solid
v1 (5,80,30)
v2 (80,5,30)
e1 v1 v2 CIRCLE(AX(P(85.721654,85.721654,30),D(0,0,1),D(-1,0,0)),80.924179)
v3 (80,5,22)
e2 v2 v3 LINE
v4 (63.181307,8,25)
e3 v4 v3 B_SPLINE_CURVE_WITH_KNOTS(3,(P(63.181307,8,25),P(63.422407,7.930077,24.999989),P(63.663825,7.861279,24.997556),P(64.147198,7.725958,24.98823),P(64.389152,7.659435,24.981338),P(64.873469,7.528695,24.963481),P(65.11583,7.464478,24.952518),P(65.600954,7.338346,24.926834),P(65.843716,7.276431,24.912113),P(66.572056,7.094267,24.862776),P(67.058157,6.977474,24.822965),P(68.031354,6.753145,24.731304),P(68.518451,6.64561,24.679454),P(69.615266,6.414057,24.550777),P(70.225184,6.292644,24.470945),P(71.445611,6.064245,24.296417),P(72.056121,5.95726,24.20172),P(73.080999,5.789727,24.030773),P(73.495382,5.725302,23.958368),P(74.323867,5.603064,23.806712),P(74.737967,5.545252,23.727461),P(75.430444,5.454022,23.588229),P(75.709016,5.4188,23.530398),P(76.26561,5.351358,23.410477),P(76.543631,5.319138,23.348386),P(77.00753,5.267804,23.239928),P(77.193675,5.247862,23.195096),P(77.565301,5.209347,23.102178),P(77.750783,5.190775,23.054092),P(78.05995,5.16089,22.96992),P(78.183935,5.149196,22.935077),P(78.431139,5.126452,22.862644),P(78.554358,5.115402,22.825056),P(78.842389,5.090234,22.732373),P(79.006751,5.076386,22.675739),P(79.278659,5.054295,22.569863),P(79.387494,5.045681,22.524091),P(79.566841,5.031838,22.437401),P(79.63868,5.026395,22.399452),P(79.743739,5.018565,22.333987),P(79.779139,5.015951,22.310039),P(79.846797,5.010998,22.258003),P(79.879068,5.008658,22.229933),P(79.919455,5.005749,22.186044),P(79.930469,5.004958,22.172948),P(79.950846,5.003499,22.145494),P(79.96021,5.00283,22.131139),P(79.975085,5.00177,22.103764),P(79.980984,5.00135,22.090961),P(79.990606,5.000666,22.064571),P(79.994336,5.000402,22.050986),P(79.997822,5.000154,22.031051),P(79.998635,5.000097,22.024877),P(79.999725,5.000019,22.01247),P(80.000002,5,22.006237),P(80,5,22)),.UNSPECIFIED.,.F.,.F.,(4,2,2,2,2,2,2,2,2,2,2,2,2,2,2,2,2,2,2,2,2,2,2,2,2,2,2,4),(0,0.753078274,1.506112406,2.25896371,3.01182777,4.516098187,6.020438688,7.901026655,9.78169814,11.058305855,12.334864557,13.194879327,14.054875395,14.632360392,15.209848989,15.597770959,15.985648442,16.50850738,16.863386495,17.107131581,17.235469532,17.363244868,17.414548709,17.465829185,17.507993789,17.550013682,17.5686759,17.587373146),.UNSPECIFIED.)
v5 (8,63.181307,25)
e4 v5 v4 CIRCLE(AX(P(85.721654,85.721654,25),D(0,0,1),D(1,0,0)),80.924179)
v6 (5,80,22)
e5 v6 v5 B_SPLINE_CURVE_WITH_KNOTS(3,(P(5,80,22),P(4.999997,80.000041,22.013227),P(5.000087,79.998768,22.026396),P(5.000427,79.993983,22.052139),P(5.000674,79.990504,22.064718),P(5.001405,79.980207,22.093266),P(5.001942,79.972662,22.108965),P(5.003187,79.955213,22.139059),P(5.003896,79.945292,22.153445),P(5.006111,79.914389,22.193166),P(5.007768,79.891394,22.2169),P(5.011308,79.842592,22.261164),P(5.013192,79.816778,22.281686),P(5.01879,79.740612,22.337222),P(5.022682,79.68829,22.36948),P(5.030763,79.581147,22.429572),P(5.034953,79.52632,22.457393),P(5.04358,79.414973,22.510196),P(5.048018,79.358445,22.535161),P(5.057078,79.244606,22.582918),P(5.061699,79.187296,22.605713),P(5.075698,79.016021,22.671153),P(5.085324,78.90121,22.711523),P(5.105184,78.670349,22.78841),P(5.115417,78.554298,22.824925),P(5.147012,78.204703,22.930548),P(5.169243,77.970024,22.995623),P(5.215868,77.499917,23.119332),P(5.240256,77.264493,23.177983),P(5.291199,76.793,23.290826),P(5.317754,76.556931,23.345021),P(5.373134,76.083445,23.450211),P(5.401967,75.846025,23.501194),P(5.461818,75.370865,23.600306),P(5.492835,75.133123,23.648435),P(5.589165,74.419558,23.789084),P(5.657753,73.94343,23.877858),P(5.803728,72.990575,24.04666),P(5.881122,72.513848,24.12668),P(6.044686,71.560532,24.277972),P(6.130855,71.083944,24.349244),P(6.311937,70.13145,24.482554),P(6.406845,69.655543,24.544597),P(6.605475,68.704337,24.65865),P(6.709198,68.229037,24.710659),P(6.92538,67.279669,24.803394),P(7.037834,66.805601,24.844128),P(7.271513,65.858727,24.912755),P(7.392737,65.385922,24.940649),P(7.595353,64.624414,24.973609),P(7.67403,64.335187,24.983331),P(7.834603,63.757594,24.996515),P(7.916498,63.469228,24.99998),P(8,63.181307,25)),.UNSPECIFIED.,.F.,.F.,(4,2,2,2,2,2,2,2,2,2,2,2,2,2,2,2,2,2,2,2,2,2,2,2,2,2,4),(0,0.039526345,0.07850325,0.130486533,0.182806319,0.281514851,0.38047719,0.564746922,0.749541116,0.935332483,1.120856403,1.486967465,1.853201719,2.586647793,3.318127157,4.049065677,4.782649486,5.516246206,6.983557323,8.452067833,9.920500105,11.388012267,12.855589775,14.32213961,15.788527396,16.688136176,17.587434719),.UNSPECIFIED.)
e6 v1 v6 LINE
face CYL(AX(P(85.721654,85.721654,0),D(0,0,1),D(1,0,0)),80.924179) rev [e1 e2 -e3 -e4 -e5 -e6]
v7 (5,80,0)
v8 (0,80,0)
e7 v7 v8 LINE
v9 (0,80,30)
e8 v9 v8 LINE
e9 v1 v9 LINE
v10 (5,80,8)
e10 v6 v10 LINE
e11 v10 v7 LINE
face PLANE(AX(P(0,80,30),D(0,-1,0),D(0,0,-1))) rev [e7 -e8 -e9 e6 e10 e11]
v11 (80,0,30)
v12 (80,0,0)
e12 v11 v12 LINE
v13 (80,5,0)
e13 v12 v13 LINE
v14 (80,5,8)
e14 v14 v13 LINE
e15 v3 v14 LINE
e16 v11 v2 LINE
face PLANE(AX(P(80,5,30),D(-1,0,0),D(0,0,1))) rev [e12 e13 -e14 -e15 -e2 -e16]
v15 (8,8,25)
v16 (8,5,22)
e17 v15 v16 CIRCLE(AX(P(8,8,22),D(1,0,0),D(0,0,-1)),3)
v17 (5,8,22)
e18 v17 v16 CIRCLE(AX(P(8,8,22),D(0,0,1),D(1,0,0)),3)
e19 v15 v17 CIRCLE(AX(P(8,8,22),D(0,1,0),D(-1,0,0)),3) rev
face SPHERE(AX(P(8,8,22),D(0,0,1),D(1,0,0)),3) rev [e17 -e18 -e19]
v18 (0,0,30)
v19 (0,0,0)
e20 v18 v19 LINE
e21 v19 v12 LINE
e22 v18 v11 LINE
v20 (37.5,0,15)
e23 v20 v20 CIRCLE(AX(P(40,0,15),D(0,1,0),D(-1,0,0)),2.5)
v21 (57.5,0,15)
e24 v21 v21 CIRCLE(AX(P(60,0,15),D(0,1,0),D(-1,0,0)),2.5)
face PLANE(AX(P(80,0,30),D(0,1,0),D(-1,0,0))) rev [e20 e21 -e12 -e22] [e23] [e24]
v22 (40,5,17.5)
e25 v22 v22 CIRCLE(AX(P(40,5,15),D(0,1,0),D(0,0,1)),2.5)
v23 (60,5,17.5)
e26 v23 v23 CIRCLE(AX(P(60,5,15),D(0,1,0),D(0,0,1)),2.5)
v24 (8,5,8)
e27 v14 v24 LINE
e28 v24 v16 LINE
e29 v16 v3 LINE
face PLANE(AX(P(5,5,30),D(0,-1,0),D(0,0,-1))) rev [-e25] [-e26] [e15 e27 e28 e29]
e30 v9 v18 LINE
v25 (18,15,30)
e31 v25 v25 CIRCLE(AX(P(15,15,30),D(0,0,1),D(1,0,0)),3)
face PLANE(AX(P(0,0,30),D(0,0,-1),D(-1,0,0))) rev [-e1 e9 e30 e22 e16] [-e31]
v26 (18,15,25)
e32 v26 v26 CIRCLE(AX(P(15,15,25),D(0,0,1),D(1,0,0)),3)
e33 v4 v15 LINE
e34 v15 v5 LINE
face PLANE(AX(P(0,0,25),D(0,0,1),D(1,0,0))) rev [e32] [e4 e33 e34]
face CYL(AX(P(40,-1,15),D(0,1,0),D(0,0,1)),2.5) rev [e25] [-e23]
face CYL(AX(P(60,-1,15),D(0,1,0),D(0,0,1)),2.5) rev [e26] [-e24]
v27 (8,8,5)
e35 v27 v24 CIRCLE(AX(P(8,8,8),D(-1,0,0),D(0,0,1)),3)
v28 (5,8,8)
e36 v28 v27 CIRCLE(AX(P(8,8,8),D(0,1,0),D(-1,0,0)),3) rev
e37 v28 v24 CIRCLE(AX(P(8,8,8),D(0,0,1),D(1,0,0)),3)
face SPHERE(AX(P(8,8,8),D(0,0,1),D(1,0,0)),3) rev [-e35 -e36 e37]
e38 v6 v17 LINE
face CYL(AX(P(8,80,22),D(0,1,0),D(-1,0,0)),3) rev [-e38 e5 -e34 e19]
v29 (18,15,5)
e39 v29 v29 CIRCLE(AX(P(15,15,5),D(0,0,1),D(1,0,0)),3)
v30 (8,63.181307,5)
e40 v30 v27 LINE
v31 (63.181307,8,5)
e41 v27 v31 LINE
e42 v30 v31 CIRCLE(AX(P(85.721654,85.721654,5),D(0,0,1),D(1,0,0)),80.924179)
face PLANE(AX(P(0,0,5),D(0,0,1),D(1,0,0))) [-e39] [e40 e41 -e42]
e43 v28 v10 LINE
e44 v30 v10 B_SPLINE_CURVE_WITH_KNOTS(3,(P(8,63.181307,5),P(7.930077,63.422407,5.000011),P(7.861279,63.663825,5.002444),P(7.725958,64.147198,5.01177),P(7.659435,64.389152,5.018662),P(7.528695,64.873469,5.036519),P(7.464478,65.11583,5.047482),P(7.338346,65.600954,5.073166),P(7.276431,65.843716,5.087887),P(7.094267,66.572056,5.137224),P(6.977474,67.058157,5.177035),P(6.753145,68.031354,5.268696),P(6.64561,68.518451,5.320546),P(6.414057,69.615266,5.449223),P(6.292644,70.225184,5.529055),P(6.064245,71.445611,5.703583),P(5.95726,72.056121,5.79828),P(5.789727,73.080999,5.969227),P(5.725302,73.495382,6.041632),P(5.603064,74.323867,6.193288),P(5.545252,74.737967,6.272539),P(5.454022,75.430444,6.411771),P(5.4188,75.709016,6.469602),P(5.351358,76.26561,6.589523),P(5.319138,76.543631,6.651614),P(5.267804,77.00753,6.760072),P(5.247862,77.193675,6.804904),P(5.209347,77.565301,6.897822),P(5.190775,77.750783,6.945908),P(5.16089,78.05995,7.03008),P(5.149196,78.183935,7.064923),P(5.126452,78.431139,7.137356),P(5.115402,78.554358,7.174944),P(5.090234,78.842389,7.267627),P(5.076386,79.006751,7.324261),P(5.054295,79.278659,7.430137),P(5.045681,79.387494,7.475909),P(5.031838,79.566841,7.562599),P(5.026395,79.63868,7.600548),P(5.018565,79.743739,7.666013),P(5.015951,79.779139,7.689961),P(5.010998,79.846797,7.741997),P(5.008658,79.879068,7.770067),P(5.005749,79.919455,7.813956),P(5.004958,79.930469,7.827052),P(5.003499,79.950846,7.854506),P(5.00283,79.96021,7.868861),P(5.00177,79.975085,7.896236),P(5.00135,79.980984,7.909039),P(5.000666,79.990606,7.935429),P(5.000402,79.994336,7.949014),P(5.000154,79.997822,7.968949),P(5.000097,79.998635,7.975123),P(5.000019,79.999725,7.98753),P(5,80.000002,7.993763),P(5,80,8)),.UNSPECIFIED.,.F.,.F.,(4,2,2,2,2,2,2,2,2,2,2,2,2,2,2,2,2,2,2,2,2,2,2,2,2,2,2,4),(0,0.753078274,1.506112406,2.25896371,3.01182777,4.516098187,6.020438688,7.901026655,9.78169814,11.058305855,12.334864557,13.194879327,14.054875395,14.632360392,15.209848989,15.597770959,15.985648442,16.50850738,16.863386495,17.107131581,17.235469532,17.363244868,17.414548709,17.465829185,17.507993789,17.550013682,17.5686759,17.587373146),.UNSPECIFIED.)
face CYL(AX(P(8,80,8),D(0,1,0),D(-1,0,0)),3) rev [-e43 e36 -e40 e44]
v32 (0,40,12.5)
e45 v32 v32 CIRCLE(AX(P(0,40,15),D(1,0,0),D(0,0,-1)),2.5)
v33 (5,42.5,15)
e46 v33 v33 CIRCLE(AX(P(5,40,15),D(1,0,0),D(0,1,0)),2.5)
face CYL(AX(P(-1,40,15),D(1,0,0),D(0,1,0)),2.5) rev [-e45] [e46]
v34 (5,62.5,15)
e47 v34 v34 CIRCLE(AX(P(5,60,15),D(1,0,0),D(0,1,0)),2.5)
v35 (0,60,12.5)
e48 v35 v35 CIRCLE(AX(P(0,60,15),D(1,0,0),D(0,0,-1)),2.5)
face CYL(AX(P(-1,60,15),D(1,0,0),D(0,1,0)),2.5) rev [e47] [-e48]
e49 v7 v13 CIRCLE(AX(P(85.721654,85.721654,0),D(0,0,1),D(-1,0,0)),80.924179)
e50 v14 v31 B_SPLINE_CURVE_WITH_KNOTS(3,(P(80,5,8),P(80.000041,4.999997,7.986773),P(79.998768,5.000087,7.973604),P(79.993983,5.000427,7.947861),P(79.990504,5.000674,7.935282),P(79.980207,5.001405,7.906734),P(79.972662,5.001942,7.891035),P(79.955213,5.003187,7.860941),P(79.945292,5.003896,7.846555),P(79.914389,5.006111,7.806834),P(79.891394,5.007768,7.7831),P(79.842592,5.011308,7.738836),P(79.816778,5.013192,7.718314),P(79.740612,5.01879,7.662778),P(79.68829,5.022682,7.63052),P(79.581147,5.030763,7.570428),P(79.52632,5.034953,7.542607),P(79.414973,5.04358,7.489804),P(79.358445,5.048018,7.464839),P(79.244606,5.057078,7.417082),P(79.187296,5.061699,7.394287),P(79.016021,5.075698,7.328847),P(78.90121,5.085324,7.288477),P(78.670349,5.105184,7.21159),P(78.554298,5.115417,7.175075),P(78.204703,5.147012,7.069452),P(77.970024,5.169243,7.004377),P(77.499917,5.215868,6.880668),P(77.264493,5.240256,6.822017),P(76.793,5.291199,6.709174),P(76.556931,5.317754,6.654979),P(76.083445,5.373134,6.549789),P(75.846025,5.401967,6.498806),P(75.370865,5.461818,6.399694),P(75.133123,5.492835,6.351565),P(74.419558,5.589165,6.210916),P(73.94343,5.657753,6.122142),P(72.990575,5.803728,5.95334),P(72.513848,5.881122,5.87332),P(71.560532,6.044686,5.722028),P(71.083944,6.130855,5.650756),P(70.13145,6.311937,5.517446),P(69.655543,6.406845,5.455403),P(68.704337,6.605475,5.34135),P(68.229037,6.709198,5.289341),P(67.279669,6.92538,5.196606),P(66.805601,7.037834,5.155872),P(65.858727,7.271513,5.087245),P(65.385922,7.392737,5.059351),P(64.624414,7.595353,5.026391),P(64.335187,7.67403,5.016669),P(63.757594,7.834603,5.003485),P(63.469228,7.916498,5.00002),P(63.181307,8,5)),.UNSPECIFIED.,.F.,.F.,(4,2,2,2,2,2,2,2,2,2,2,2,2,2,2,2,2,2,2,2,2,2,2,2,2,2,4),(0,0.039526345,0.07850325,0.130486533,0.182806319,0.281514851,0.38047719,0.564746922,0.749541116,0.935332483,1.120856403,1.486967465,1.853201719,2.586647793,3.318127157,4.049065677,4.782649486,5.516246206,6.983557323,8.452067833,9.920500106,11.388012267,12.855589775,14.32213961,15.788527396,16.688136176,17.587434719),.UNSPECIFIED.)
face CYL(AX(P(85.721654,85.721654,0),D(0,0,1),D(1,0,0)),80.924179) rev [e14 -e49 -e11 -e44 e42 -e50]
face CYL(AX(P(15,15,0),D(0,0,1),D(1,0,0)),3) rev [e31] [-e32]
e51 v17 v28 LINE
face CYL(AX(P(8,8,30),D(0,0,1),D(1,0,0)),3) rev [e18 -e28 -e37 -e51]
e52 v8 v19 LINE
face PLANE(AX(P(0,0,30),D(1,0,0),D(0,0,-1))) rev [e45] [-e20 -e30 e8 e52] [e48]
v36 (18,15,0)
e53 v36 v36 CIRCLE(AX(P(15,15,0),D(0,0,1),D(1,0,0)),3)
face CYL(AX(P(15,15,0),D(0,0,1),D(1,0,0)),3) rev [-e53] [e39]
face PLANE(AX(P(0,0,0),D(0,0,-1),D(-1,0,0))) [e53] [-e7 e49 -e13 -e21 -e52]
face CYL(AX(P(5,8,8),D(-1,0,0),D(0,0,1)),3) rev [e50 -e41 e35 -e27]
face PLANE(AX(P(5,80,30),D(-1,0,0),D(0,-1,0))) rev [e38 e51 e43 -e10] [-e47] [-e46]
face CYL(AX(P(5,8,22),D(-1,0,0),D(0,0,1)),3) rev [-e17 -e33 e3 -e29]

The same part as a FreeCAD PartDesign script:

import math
import FreeCAD as App
import Part
import Sketcher
Q = App.Units.Quantity


def edges_at(feature, points):
    """Names of the edges that pass closest to the given points."""
    edges = feature.Shape.Edges
    near = lambda p: min(range(len(edges)), key=lambda i: edges[i].distToShape(Part.Vertex(*p))[0])
    return sorted({f"Edge{near(p) + 1}" for p in points})

doc = App.newDocument("Part")
body = doc.addObject("PartDesign::Body", "Body")

# Sketch on XY plane
sketch1 = doc.addObject("Sketcher::SketchObject", "Sketch")
body.addObject(sketch1)
sketch1.AttachmentSupport = (doc.XY_Plane, [""])
sketch1.MapMode = "FlatFace"
sketch1.addGeometry([
    Part.LineSegment(App.Vector(0, 80, 0), App.Vector(0, 0, 0)),  # 0
    Part.LineSegment(App.Vector(0, 0, 0), App.Vector(80, 0, 0)),  # 1
    Part.LineSegment(App.Vector(80, 0, 0), App.Vector(80, 5, 0)),  # 2
    Part.LineSegment(App.Vector(80, 5, 0), App.Vector(5, 5, 0)),  # 3
    Part.LineSegment(App.Vector(5, 5, 0), App.Vector(5, 80, 0)),  # 4
    Part.LineSegment(App.Vector(5, 80, 0), App.Vector(0, 80, 0)),  # 5
], False)
sketch1.addConstraint([
    Sketcher.Constraint("Coincident", 0, 2, 1, 1),
    Sketcher.Constraint("Coincident", 1, 2, 2, 1),
    Sketcher.Constraint("Coincident", 2, 2, 3, 1),
    Sketcher.Constraint("Coincident", 3, 2, 4, 1),
    Sketcher.Constraint("Coincident", 4, 2, 5, 1),
    Sketcher.Constraint("Coincident", 5, 2, 0, 1),
    Sketcher.Constraint("Vertical", 0),
    Sketcher.Constraint("Horizontal", 1),
    Sketcher.Constraint("Vertical", 2),
    Sketcher.Constraint("Horizontal", 3),
    Sketcher.Constraint("Vertical", 4),
    Sketcher.Constraint("Horizontal", 5),
    Sketcher.Constraint("Coincident", 0, 2, -1, 1),
    Sketcher.Constraint("Equal", 1, 0),
    Sketcher.Constraint("Equal", 5, 2),
    Sketcher.Constraint("DistanceX", 1, 1, 1, 2, Q("80 mm")),
    Sketcher.Constraint("DistanceX", 3, 2, 3, 1, Q("75 mm")),
])
pad1 = doc.addObject("PartDesign::Pad", "Pad")
body.addObject(pad1)
pad1.Profile = sketch1
pad1.Length = 30

# Sketch on XZ plane
sketch2 = doc.addObject("Sketcher::SketchObject", "Sketch001")
body.addObject(sketch2)
sketch2.AttachmentSupport = (doc.XZ_Plane, [""])
sketch2.MapMode = "FlatFace"
sketch2.AttachmentOffset = App.Placement(App.Vector(0, 0, -5), App.Rotation())
sketch2.addGeometry([
    Part.Circle(App.Vector(60, 15, 0), App.Vector(0, 0, 1), 2.5),
    Part.Circle(App.Vector(40, 15, 0), App.Vector(0, 0, 1), 2.5),
], False)
sketch2.addConstraint([
    Sketcher.Constraint("Equal", 0, 1),
    Sketcher.Constraint("Horizontal", 0, 3, 1, 3),
    Sketcher.Constraint("Diameter", 0, Q("5 mm")),
    Sketcher.Constraint("DistanceX", -1, 1, 0, 3, Q("60 mm")),
    Sketcher.Constraint("DistanceY", -1, 1, 0, 3, Q("15 mm")),
    Sketcher.Constraint("DistanceX", -1, 1, 1, 3, Q("40 mm")),
])
pocket1 = doc.addObject("PartDesign::Pocket", "Pocket")
body.addObject(pocket1)
pocket1.Profile = sketch2
pocket1.Length = 6
pocket1.Reversed = True

# Sketch on YZ plane
sketch3 = doc.addObject("Sketcher::SketchObject", "Sketch002")
body.addObject(sketch3)
sketch3.AttachmentSupport = (doc.YZ_Plane, [""])
sketch3.MapMode = "FlatFace"
sketch3.AttachmentOffset = App.Placement(App.Vector(0, 0, 5), App.Rotation())
sketch3.addGeometry([
    Part.Circle(App.Vector(60, 15, 0), App.Vector(0, 0, 1), 2.5),
    Part.Circle(App.Vector(40, 15, 0), App.Vector(0, 0, 1), 2.5),
], False)
sketch3.addConstraint([
    Sketcher.Constraint("Equal", 0, 1),
    Sketcher.Constraint("Horizontal", 0, 3, 1, 3),
    Sketcher.Constraint("Diameter", 0, Q("5 mm")),
    Sketcher.Constraint("DistanceX", -1, 1, 0, 3, Q("60 mm")),
    Sketcher.Constraint("DistanceY", -1, 1, 0, 3, Q("15 mm")),
    Sketcher.Constraint("DistanceX", -1, 1, 1, 3, Q("40 mm")),
])
pocket2 = doc.addObject("PartDesign::Pocket", "Pocket001")
body.addObject(pocket2)
pocket2.Profile = sketch3
pocket2.Length = 6

# Sketch on XY plane
sketch4 = doc.addObject("Sketcher::SketchObject", "Sketch003")
body.addObject(sketch4)
sketch4.AttachmentSupport = (doc.XY_Plane, [""])
sketch4.MapMode = "FlatFace"
sketch4.addGeometry([
    Part.LineSegment(App.Vector(5, 5, 0), App.Vector(5, 80, 0)),
    Part.LineSegment(App.Vector(5, 80, 0), App.Vector(80, 5, 0)),
    Part.LineSegment(App.Vector(80, 5, 0), App.Vector(5, 5, 0)),
], False)
sketch4.addConstraint([
    Sketcher.Constraint("Coincident", 0, 2, 1, 1),
    Sketcher.Constraint("Coincident", 1, 2, 2, 1),
    Sketcher.Constraint("Coincident", 2, 2, 0, 1),
    Sketcher.Constraint("Vertical", 0),
    Sketcher.Constraint("Horizontal", 2),
    Sketcher.Constraint("Equal", 2, 0),
    Sketcher.Constraint("DistanceX", 2, 2, 2, 1, Q("75 mm")),
    Sketcher.Constraint("DistanceX", -1, 1, 0, 2, Q("5 mm")),
    Sketcher.Constraint("DistanceY", -1, 1, 0, 2, Q("80 mm")),
])
pad2 = doc.addObject("PartDesign::Pad", "Pad001")
body.addObject(pad2)
pad2.Profile = sketch4
pad2.Length = 5

# Sketch on XY plane
sketch5 = doc.addObject("Sketcher::SketchObject", "Sketch004")
body.addObject(sketch5)
sketch5.AttachmentSupport = (doc.XY_Plane, [""])
sketch5.MapMode = "FlatFace"
sketch5.AttachmentOffset = App.Placement(App.Vector(0, 0, 30), App.Rotation())
sketch5.addGeometry([
    Part.LineSegment(App.Vector(5, 80, 0), App.Vector(5, 5, 0)),
    Part.LineSegment(App.Vector(5, 5, 0), App.Vector(80, 5, 0)),
    Part.LineSegment(App.Vector(80, 5, 0), App.Vector(5, 80, 0)),
], False)
sketch5.addConstraint([
    Sketcher.Constraint("Coincident", 0, 2, 1, 1),
    Sketcher.Constraint("Coincident", 1, 2, 2, 1),
    Sketcher.Constraint("Coincident", 2, 2, 0, 1),
    Sketcher.Constraint("Vertical", 0),
    Sketcher.Constraint("Horizontal", 1),
    Sketcher.Constraint("Equal", 1, 0),
    Sketcher.Constraint("DistanceX", 1, 1, 1, 2, Q("75 mm")),
    Sketcher.Constraint("DistanceX", -1, 1, 0, 2, Q("5 mm")),
    Sketcher.Constraint("DistanceY", -1, 1, 0, 2, Q("5 mm")),
])
pad3 = doc.addObject("PartDesign::Pad", "Pad002")
body.addObject(pad3)
pad3.Profile = sketch5
pad3.Length = 5
pad3.Reversed = True
doc.recompute()

fillet = doc.addObject("PartDesign::Fillet", "Fillet")
body.addObject(fillet)
fillet.Base = (pad3, edges_at(pad3, [(5, 42.5, 25)]))
fillet.Radius = 3
doc.recompute()

fillet2 = doc.addObject("PartDesign::Fillet", "Fillet001")
body.addObject(fillet2)
fillet2.Base = (fillet, edges_at(fillet, [(5, 42.5, 5)]))
fillet2.Radius = 3
doc.recompute()

fillet3 = doc.addObject("PartDesign::Fillet", "Fillet002")
body.addObject(fillet3)
fillet3.Base = (fillet2, edges_at(fillet2, [
    (44, 5, 5),
    (5, 5, 15),
    (44, 5, 25),
    (5.879, 5, 24.121),
    (5.879, 5, 5.879),
]))
fillet3.Radius = 3

# Sketch on XY plane
sketch6 = doc.addObject("Sketcher::SketchObject", "Sketch005")
body.addObject(sketch6)
sketch6.AttachmentSupport = (doc.XY_Plane, [""])
sketch6.MapMode = "FlatFace"
sketch6.AttachmentOffset = App.Placement(App.Vector(0, 0, 30), App.Rotation())
sketch6.addGeometry([
    Part.LineSegment(App.Vector(80, 5, 0), App.Vector(5, 80, 0)),
    Part.ArcOfCircle(Part.Circle(App.Vector(85.721654, 85.721654, 0), App.Vector(0, 0, 1), 80.924179), math.radians(-175.945583), math.radians(-94.054417)),
], False)
sketch6.addConstraint([
    Sketcher.Constraint("Coincident", 0, 1, 1, 2),
    Sketcher.Constraint("Coincident", 1, 1, 0, 2),
    Sketcher.Constraint("Angle", 0, Q("135 deg")),
    Sketcher.Constraint("DistanceX", -1, 1, 0, 1, Q("80 mm")),
    Sketcher.Constraint("DistanceY", -1, 1, 0, 1, Q("5 mm")),
    Sketcher.Constraint("DistanceX", -1, 1, 1, 1, Q("5 mm")),
    Sketcher.Constraint("Radius", 1, Q("80.924179 mm")),
])
pocket3 = doc.addObject("PartDesign::Pocket", "Pocket002")
body.addObject(pocket3)
pocket3.Profile = sketch6
pocket3.Type = "ThroughAll"

# Sketch on XY plane
sketch7 = doc.addObject("Sketcher::SketchObject", "Sketch006")
body.addObject(sketch7)
sketch7.AttachmentSupport = (doc.XY_Plane, [""])
sketch7.MapMode = "FlatFace"
sketch7.AttachmentOffset = App.Placement(App.Vector(0, 0, 30), App.Rotation())
sketch7.addGeometry(Part.Circle(App.Vector(15, 15, 0), App.Vector(0, 0, 1), 3), False)
sketch7.addConstraint([
    Sketcher.Constraint("Diameter", 0, Q("6 mm")),
    Sketcher.Constraint("DistanceX", -1, 1, 0, 3, Q("15 mm")),
    Sketcher.Constraint("DistanceY", -1, 1, 0, 3, Q("15 mm")),
])
pocket4 = doc.addObject("PartDesign::Pocket", "Pocket003")
body.addObject(pocket4)
pocket4.Profile = sketch7
pocket4.Type = "ThroughAll"

doc.recompute()
